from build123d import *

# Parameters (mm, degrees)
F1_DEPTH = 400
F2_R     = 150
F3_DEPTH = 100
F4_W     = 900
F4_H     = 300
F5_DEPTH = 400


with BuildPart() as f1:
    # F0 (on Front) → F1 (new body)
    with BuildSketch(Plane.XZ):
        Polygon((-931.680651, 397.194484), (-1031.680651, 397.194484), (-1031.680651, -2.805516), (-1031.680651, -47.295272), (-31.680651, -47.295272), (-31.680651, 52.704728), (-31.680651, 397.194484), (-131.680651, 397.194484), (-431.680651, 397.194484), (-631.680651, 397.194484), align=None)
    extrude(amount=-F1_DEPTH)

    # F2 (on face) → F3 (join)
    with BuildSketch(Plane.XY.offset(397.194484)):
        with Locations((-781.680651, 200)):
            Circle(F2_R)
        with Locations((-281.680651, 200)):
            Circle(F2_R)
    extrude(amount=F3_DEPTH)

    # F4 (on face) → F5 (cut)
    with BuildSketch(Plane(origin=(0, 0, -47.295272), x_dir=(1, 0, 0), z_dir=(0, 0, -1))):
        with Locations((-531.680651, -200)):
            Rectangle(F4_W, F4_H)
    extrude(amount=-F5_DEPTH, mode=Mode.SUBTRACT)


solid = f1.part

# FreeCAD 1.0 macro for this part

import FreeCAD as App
import Part
import Sketcher
Q = App.Units.Quantity

doc = App.newDocument("Part")
body = doc.addObject("PartDesign::Body", "Body")

# Sketch on XZ plane
sketch1 = doc.addObject("Sketcher::SketchObject", "Sketch")
body.addObject(sketch1)
sketch1.AttachmentSupport = (doc.XZ_Plane, [""])
sketch1.MapMode = "FlatFace"
sketch1.addGeometry(Part.LineSegment(App.Vector(-1032, 397, 0), App.Vector(-1032, -47, 0)), False)
sketch1.addGeometry(Part.LineSegment(App.Vector(-1032, -47, 0), App.Vector(-32, -47, 0)), False)
sketch1.addGeometry(Part.LineSegment(App.Vector(-32, -47, 0), App.Vector(-32, 397, 0)), False)
sketch1.addGeometry(Part.LineSegment(App.Vector(-32, 397, 0), App.Vector(-1032, 397, 0)), False)
sketch1.addConstraint(Sketcher.Constraint("Coincident", 0, 2, 1, 1))
sketch1.addConstraint(Sketcher.Constraint("Coincident", 1, 2, 2, 1))
sketch1.addConstraint(Sketcher.Constraint("Coincident", 2, 2, 3, 1))
sketch1.addConstraint(Sketcher.Constraint("Coincident", 3, 2, 0, 1))
sketch1.addConstraint(Sketcher.Constraint("Vertical", 0))
sketch1.addConstraint(Sketcher.Constraint("Horizontal", 1))
sketch1.addConstraint(Sketcher.Constraint("Vertical", 2))
sketch1.addConstraint(Sketcher.Constraint("Horizontal", 3))
sketch1.addConstraint(Sketcher.Constraint("DistanceX", 1, 1, 1, 2, Q("1000 mm")))
sketch1.addConstraint(Sketcher.Constraint("DistanceY", 0, 2, 0, 1, Q("444.489756 mm")))
sketch1.addConstraint(Sketcher.Constraint("DistanceX", 0, 2, -1, 1, Q("1031.680651 mm")))
sketch1.addConstraint(Sketcher.Constraint("DistanceY", 0, 2, -1, 1, Q("47.295272 mm")))
pad1 = doc.addObject("PartDesign::Pad", "Pad")
body.addObject(pad1)
pad1.Profile = sketch1
pad1.Length = 400
pad1.Reversed = True

# Sketch on XY plane
sketch2 = doc.addObject("Sketcher::SketchObject", "Sketch001")
body.addObject(sketch2)
sketch2.AttachmentSupport = (doc.XY_Plane, [""])
sketch2.MapMode = "FlatFace"
sketch2.AttachmentOffset = App.Placement(App.Vector(0, 0, 397.194484), App.Rotation())
sketch2.addGeometry(Part.Circle(App.Vector(-782, 200, 0), App.Vector(0, 0, 1), 150), False)
sketch2.addGeometry(Part.Circle(App.Vector(-282, 200, 0), App.Vector(0, 0, 1), 150), False)
sketch2.addConstraint(Sketcher.Constraint("Equal", 0, 1))
sketch2.addConstraint(Sketcher.Constraint("Horizontal", 0, 3, 1, 3))
sketch2.addConstraint(Sketcher.Constraint("Diameter", 0, Q("300 mm")))
sketch2.addConstraint(Sketcher.Constraint("DistanceY", -1, 1, 0, 3, Q("200 mm")))
sketch2.addConstraint(Sketcher.Constraint("DistanceX", 0, 3, 1, 3, Q("500 mm")))
sketch2.addConstraint(Sketcher.Constraint("DistanceX", 0, 3, -1, 1, Q("781.680651 mm")))
pad2 = doc.addObject("PartDesign::Pad", "Pad001")
body.addObject(pad2)
pad2.Profile = sketch2
pad2.Length = 100

# Sketch on XY plane
sketch3 = doc.addObject("Sketcher::SketchObject", "Sketch002")
body.addObject(sketch3)
sketch3.AttachmentSupport = (doc.XY_Plane, [""])
sketch3.MapMode = "FlatFace"
sketch3.AttachmentOffset = App.Placement(App.Vector(0, 0, -47.295272), App.Rotation())
sketch3.addGeometry(Part.LineSegment(App.Vector(-982, 50, 0), App.Vector(-982, 350, 0)), False)
sketch3.addGeometry(Part.LineSegment(App.Vector(-982, 350, 0), App.Vector(-82, 350, 0)), False)
sketch3.addGeometry(Part.LineSegment(App.Vector(-82, 350, 0), App.Vector(-82, 50, 0)), False)
sketch3.addGeometry(Part.LineSegment(App.Vector(-82, 50, 0), App.Vector(-982, 50, 0)), False)
sketch3.addConstraint(Sketcher.Constraint("Coincident", 0, 2, 1, 1))
sketch3.addConstraint(Sketcher.Constraint("Coincident", 1, 2, 2, 1))
sketch3.addConstraint(Sketcher.Constraint("Coincident", 2, 2, 3, 1))
sketch3.addConstraint(Sketcher.Constraint("Coincident", 3, 2, 0, 1))
sketch3.addConstraint(Sketcher.Constraint("Vertical", 0))
sketch3.addConstraint(Sketcher.Constraint("Horizontal", 1))
sketch3.addConstraint(Sketcher.Constraint("Vertical", 2))
sketch3.addConstraint(Sketcher.Constraint("Horizontal", 3))
sketch3.addConstraint(Sketcher.Constraint("DistanceX", 1, 1, 1, 2, Q("900 mm")))
sketch3.addConstraint(Sketcher.Constraint("DistanceY", 0, 1, 0, 2, Q("300 mm")))
sketch3.addConstraint(Sketcher.Constraint("DistanceY", -1, 1, 0, 2, Q("350 mm")))
sketch3.addConstraint(Sketcher.Constraint("DistanceX", 0, 2, -1, 1, Q("981.680651 mm")))
pocket1 = doc.addObject("PartDesign::Pocket", "Pocket")
body.addObject(pocket1)
pocket1.Profile = sketch3
pocket1.Length = 400
pocket1.Reversed = True

doc.recompute()
